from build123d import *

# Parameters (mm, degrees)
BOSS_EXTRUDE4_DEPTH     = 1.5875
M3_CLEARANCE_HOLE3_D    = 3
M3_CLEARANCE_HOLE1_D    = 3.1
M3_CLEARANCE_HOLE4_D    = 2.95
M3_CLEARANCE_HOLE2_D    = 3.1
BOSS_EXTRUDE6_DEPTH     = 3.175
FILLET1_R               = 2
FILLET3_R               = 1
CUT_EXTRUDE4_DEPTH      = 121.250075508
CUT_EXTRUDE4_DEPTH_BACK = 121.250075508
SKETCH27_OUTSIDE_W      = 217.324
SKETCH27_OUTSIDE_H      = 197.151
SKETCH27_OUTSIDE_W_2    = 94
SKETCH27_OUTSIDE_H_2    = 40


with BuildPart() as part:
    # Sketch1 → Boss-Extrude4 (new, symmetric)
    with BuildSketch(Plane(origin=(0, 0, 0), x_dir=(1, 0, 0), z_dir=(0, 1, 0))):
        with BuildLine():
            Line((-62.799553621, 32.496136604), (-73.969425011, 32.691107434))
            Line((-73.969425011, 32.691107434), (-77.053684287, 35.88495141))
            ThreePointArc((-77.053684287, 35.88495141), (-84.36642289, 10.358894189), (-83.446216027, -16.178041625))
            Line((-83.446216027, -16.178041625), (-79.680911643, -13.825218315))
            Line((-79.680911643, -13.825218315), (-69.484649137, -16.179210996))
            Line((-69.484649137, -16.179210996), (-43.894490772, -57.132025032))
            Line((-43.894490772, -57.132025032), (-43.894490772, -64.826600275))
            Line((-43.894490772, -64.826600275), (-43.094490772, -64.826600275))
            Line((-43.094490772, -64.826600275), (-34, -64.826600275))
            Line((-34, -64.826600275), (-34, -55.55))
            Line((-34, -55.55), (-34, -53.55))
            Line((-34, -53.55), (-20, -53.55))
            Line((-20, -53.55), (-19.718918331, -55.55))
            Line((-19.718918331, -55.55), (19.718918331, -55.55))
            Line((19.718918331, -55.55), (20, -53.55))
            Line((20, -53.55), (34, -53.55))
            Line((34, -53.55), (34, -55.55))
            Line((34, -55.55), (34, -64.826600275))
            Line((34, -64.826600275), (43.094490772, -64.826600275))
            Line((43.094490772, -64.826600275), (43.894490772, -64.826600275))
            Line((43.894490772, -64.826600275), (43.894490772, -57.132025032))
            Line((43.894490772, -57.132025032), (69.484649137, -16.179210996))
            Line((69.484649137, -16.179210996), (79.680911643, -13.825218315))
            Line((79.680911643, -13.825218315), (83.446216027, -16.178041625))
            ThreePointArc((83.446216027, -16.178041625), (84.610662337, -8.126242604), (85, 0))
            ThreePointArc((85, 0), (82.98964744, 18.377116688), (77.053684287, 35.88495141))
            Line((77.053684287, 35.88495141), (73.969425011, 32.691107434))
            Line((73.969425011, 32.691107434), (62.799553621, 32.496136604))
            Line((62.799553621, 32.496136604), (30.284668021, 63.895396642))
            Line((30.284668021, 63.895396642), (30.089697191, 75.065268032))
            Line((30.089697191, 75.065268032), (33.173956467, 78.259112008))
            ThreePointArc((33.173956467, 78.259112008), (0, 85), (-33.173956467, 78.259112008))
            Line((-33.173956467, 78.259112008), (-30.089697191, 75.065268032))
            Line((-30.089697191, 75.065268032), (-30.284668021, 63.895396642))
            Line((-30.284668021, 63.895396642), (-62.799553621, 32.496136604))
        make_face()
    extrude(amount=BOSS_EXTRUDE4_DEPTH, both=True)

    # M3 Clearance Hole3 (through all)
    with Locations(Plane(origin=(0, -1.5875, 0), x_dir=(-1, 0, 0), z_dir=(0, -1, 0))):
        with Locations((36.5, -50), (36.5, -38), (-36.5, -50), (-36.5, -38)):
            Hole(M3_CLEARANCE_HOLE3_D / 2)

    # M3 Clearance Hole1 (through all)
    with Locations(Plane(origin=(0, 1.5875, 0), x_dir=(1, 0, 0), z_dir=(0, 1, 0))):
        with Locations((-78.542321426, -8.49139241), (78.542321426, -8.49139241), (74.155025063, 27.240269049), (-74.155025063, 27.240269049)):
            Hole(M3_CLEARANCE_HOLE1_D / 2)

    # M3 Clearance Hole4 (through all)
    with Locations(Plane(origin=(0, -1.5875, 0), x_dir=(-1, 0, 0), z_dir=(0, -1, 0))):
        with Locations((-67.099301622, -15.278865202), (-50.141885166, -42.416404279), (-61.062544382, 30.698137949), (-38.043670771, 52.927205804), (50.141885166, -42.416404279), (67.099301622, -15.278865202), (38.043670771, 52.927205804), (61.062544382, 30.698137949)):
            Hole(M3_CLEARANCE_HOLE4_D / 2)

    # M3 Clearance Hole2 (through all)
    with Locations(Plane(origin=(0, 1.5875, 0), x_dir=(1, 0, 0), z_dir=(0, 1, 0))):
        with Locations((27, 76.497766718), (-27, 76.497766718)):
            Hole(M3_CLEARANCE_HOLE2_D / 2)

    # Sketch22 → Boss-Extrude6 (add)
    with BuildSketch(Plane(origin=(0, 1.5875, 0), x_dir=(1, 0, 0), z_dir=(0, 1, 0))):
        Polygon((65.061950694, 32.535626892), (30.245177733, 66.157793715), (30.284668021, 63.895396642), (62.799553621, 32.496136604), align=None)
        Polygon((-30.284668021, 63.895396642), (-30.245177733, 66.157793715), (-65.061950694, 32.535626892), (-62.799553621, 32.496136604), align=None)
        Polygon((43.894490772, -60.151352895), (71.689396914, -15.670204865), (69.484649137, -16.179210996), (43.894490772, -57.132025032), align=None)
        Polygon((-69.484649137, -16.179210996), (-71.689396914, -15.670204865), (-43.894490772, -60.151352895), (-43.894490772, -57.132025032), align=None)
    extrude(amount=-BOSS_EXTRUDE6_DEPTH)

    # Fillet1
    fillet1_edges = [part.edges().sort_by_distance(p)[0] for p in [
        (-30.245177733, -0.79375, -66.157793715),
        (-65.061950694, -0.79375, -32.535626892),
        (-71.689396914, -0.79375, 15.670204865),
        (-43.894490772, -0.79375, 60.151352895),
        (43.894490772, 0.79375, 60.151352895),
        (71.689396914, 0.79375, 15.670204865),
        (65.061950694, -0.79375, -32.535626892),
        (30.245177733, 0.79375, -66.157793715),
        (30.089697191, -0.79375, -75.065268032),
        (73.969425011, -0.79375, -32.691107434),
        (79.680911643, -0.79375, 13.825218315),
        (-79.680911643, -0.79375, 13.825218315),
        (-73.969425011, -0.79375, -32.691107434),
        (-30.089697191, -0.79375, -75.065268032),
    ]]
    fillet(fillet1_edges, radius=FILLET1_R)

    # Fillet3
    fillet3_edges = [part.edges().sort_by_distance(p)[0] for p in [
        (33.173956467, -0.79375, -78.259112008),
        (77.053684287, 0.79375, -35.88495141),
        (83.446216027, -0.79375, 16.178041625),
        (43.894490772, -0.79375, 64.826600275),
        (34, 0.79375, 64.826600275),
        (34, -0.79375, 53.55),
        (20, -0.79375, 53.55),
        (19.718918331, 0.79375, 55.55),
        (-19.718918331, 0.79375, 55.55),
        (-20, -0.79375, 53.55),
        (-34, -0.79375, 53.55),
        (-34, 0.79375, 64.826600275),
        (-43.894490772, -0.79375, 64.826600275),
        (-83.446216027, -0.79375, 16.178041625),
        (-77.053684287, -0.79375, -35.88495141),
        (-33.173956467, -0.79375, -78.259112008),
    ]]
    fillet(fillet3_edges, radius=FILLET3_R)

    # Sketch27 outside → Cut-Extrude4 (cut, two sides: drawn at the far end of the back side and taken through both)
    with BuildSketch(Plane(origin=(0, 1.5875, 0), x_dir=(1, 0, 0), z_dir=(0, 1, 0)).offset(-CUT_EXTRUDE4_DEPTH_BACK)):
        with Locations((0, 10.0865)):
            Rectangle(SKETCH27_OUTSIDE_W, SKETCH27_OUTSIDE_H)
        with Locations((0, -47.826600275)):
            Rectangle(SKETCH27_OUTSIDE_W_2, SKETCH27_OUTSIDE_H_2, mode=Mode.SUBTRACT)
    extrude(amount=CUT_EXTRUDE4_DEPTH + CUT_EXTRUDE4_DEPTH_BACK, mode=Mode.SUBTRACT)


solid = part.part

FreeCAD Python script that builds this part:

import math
import FreeCAD as App
import Part
import Sketcher
Q = App.Units.Quantity


def edges_at(feature, points):
    """Names of the edges that pass closest to the given points."""
    edges = feature.Shape.Edges
    near = lambda p: min(range(len(edges)), key=lambda i: edges[i].distToShape(Part.Vertex(*p))[0])
    return sorted({f"Edge{near(p) + 1}" for p in points})


def add_polygon(sketch, points):
    """Adds a closed chain of lines whose ends are joined by coincident constraints."""
    first, n = sketch.GeometryCount, len(points)
    for a, b in zip(points, points[1:] + points[:1]):
        sketch.addGeometry(Part.LineSegment(App.Vector(*a, 0), App.Vector(*b, 0)), False)
    for i in range(n):
        sketch.addConstraint(Sketcher.Constraint("Coincident", first + i, 2, first + (i + 1) % n, 1))

doc = App.newDocument("Part")
body = doc.addObject("PartDesign::Body", "Body")

# Sketch on XZ plane
sketch1 = body.newObject("Sketcher::SketchObject", "Sketch")
sketch1.AttachmentSupport = (doc.getObject("XZ_Plane"), [""])
sketch1.MapMode = "FlatFace"
sketch1.addGeometry([
    Part.LineSegment(App.Vector(-62.8, -32.5, 0), App.Vector(-74, -32.7, 0)),  # 0
    Part.LineSegment(App.Vector(-74, -32.7, 0), App.Vector(-77.1, -35.9, 0)),  # 1
    Part.ArcOfCircle(Part.Circle(App.Vector(0, 0, 0), App.Vector(0, 0, 1), 85), math.radians(169), math.radians(205)),  # 2
    Part.LineSegment(App.Vector(-83.4, 16.2, 0), App.Vector(-79.7, 13.8, 0)),  # 3
    Part.LineSegment(App.Vector(-79.7, 13.8, 0), App.Vector(-69.5, 16.2, 0)),  # 4
    Part.LineSegment(App.Vector(-69.5, 16.2, 0), App.Vector(-43.9, 57.1, 0)),  # 5
    Part.LineSegment(App.Vector(-43.9, 57.1, 0), App.Vector(-43.9, 64.8, 0)),  # 6
    Part.LineSegment(App.Vector(-43.9, 64.8, 0), App.Vector(-34, 64.8, 0)),  # 7
    Part.LineSegment(App.Vector(-34, 64.8, 0), App.Vector(-34, 53.5, 0)),  # 8
    Part.LineSegment(App.Vector(-34, 53.5, 0), App.Vector(-20, 53.5, 0)),  # 9
    Part.LineSegment(App.Vector(-20, 53.5, 0), App.Vector(-19.7, 55.5, 0)),  # 10
    Part.LineSegment(App.Vector(-19.7, 55.5, 0), App.Vector(19.7, 55.5, 0)),  # 11
    Part.LineSegment(App.Vector(19.7, 55.5, 0), App.Vector(20, 53.5, 0)),  # 12
    Part.LineSegment(App.Vector(20, 53.5, 0), App.Vector(34, 53.5, 0)),  # 13
    Part.LineSegment(App.Vector(34, 53.5, 0), App.Vector(34, 64.8, 0)),  # 14
    Part.LineSegment(App.Vector(34, 64.8, 0), App.Vector(43.9, 64.8, 0)),  # 15
    Part.LineSegment(App.Vector(43.9, 64.8, 0), App.Vector(43.9, 57.1, 0)),  # 16
    Part.LineSegment(App.Vector(43.9, 57.1, 0), App.Vector(69.5, 16.2, 0)),  # 17
    Part.LineSegment(App.Vector(69.5, 16.2, 0), App.Vector(79.7, 13.8, 0)),  # 18
    Part.LineSegment(App.Vector(79.7, 13.8, 0), App.Vector(83.4, 16.2, 0)),  # 19
    Part.ArcOfCircle(Part.Circle(App.Vector(0, 0, 0), App.Vector(0, 0, 1), 85), math.radians(0), math.radians(10.97)),  # 20
    Part.ArcOfCircle(Part.Circle(App.Vector(0, 0, 0), App.Vector(0, 0, 1), 85), math.radians(-25), math.radians(0)),  # 21
    Part.LineSegment(App.Vector(77.1, -35.9, 0), App.Vector(74, -32.7, 0)),  # 22
    Part.LineSegment(App.Vector(74, -32.7, 0), App.Vector(62.8, -32.5, 0)),  # 23
    Part.LineSegment(App.Vector(62.8, -32.5, 0), App.Vector(30.3, -63.9, 0)),  # 24
    Part.LineSegment(App.Vector(30.3, -63.9, 0), App.Vector(30.1, -75.1, 0)),  # 25
    Part.LineSegment(App.Vector(30.1, -75.1, 0), App.Vector(33.2, -78.3, 0)),  # 26
    Part.ArcOfCircle(Part.Circle(App.Vector(0, 0, 0), App.Vector(0, 0, 1), 85), math.radians(-113), math.radians(-67)),  # 27
    Part.LineSegment(App.Vector(-33.2, -78.3, 0), App.Vector(-30.1, -75.1, 0)),  # 28
    Part.LineSegment(App.Vector(-30.1, -75.1, 0), App.Vector(-30.3, -63.9, 0)),  # 29
    Part.LineSegment(App.Vector(-30.3, -63.9, 0), App.Vector(-62.8, -32.5, 0)),  # 30
], False)
sketch1.addConstraint([
    Sketcher.Constraint("Coincident", 0, 2, 1, 1),
    Sketcher.Constraint("Coincident", 1, 2, 2, 2),
    Sketcher.Constraint("Coincident", 2, 1, 3, 1),
    Sketcher.Constraint("Coincident", 3, 2, 4, 1),
    Sketcher.Constraint("Coincident", 4, 2, 5, 1),
    Sketcher.Constraint("Coincident", 5, 2, 6, 1),
    Sketcher.Constraint("Coincident", 6, 2, 7, 1),
    Sketcher.Constraint("Coincident", 7, 2, 8, 1),
    Sketcher.Constraint("Coincident", 8, 2, 9, 1),
    Sketcher.Constraint("Coincident", 9, 2, 10, 1),
    Sketcher.Constraint("Coincident", 10, 2, 11, 1),
    Sketcher.Constraint("Coincident", 11, 2, 12, 1),
    Sketcher.Constraint("Coincident", 12, 2, 13, 1),
    Sketcher.Constraint("Coincident", 13, 2, 14, 1),
    Sketcher.Constraint("Coincident", 14, 2, 15, 1),
    Sketcher.Constraint("Coincident", 15, 2, 16, 1),
    Sketcher.Constraint("Coincident", 16, 2, 17, 1),
    Sketcher.Constraint("Coincident", 17, 2, 18, 1),
    Sketcher.Constraint("Coincident", 18, 2, 19, 1),
    Sketcher.Constraint("Coincident", 19, 2, 20, 2),
    Sketcher.Constraint("Tangent", 20, 1, 21, 2),
    Sketcher.Constraint("Coincident", 21, 1, 22, 1),
    Sketcher.Constraint("Coincident", 22, 2, 23, 1),
    Sketcher.Constraint("Coincident", 23, 2, 24, 1),
    Sketcher.Constraint("Coincident", 24, 2, 25, 1),
    Sketcher.Constraint("Coincident", 25, 2, 26, 1),
    Sketcher.Constraint("Coincident", 26, 2, 27, 2),
    Sketcher.Constraint("Coincident", 27, 1, 28, 1),
    Sketcher.Constraint("Coincident", 28, 2, 29, 1),
    Sketcher.Constraint("Coincident", 29, 2, 30, 1),
    Sketcher.Constraint("Coincident", 30, 2, 0, 1),
    Sketcher.Constraint("Vertical", 6),
    Sketcher.Constraint("Horizontal", 7),
    Sketcher.Constraint("Vertical", 8),
    Sketcher.Constraint("Horizontal", 9),
    Sketcher.Constraint("Horizontal", 11),
    Sketcher.Constraint("Horizontal", 13),
    Sketcher.Constraint("Vertical", 14),
    Sketcher.Constraint("Horizontal", 15),
    Sketcher.Constraint("Vertical", 16),
    Sketcher.Constraint("Coincident", 2, 3, -1, 1),
    Sketcher.Constraint("Coincident", 20, 3, -1, 1),
    Sketcher.Constraint("Coincident", 27, 3, -1, 1),
    Sketcher.Constraint("Equal", 2, 20),
    Sketcher.Constraint("Equal", 20, 21),
    Sketcher.Constraint("Equal", 21, 27),
    Sketcher.Constraint("Symmetric", 9, 2, 12, 2, -2),
    Sketcher.Constraint("Symmetric", 7, 2, 14, 2, -2),
    Sketcher.Constraint("Symmetric", 5, 2, 16, 2, -2),
    Sketcher.Constraint("Symmetric", 4, 2, 17, 2, -2),
    Sketcher.Constraint("Symmetric", 3, 2, 18, 2, -2),
    Sketcher.Constraint("Symmetric", 0, 2, 22, 2, -2),
    Sketcher.Constraint("Symmetric", 25, 2, 28, 2, -2),
    Sketcher.Constraint("Symmetric", 24, 2, 29, 2, -2),
    Sketcher.Constraint("Symmetric", 23, 2, 30, 2, -2),
    Sketcher.Constraint("PointOnObject", 20, 1, -1),
    Sketcher.Constraint("Perpendicular", 3, 5),
    Sketcher.Constraint("Perpendicular", 17, 19),
    Sketcher.Constraint("Perpendicular", 22, 24),
    Sketcher.Constraint("Perpendicular", 23, 25),
    Sketcher.Constraint("Perpendicular", 24, 26),
    Sketcher.Constraint("Parallel", 1, 28),
    Sketcher.Constraint("Perpendicular", 28, 30),
    Sketcher.Constraint("Equal", 1, 3),
    Sketcher.Constraint("Equal", 10, 12),
    Sketcher.Constraint("Equal", 23, 25),
    Sketcher.Constraint("Equal", 22, 26),
    Sketcher.Constraint("Radius", 2, 85.0),
    Sketcher.Constraint("DistanceX", 9, 1, 9, 2, 14.0),
    Sketcher.Constraint("Angle", 0, Q("-179 deg")),
    Sketcher.Constraint("Angle", 1, Q("-134 deg")),
    Sketcher.Constraint("Angle", 3, Q("-32 deg")),
    Sketcher.Constraint("Angle", 4, Q("13 deg")),
    Sketcher.Constraint("Angle", 10, Q("82 deg")),
    Sketcher.Constraint("DistanceX", 7, 2, -1, 1, 34.0),
    Sketcher.Constraint("DistanceY", 9, 2, 10, 2, 2.0),
    Sketcher.Constraint("DistanceY", -1, 1, 8, 2, 53.55),
    Sketcher.Constraint("DistanceY", 8, 2, 8, 1, 11.2766),
    Sketcher.Constraint("DistanceX", 7, 1, 7, 2, 9.894491),
    Sketcher.Constraint("Distance", 24, 45.20101),
    Sketcher.Constraint("DistanceY", 6, 1, 6, 2, 7.694575),
    Sketcher.Constraint("DistanceY", 1, 2, -1, 1, 35.884951),
    Sketcher.Constraint("DistanceY", -1, 1, 2, 1, 16.178042),
    Sketcher.Constraint("DistanceX", 3, 2, -1, 1, 79.680912),
])
pad1 = body.newObject("PartDesign::Pad", "Pad")
pad1.Profile = sketch1
pad1.Length = 3.175
pad1.Midplane = True

# Sketch on XZ plane
sketch2 = body.newObject("Sketcher::SketchObject", "Sketch001")
sketch2.AttachmentSupport = (doc.getObject("XZ_Plane"), [""])
sketch2.MapMode = "FlatFace"
sketch2.AttachmentOffset = App.Placement(App.Vector(0, 0, 1.5875), App.Rotation())
sketch2.addGeometry([
    Part.Circle(App.Vector(-36.5, 50, 0), App.Vector(0, 0, 1), 1.5),
    Part.Circle(App.Vector(-36.5, 38, 0), App.Vector(0, 0, 1), 1.5),
    Part.Circle(App.Vector(36.5, 50, 0), App.Vector(0, 0, 1), 1.5),
    Part.Circle(App.Vector(36.5, 38, 0), App.Vector(0, 0, 1), 1.5),
], False)
sketch2.addConstraint([
    Sketcher.Constraint("Equal", 0, 1),
    Sketcher.Constraint("Equal", 1, 2),
    Sketcher.Constraint("Equal", 2, 3),
    Sketcher.Constraint("Symmetric", 0, 3, 2, 3, -2),
    Sketcher.Constraint("Symmetric", 1, 3, 3, 3, -2),
    Sketcher.Constraint("Vertical", 0, 3, 1, 3),
    Sketcher.Constraint("Diameter", 0, 3.0),
    Sketcher.Constraint("DistanceY", -1, 1, 0, 3, 50.0),
    Sketcher.Constraint("DistanceY", -1, 1, 1, 3, 38.0),
    Sketcher.Constraint("DistanceX", 0, 3, 2, 3, 73.0),
])
doc.recompute()
hole = body.newObject("PartDesign::Hole", "Hole")
hole.Profile = sketch2
hole.ThreadType = "None"
hole.Diameter = 3
hole.DepthType = "ThroughAll"

# Sketch on XZ plane
sketch3 = body.newObject("Sketcher::SketchObject", "Sketch002")
sketch3.AttachmentSupport = (doc.getObject("XZ_Plane"), [""])
sketch3.MapMode = "FlatFace"
sketch3.AttachmentOffset = App.Placement(App.Vector(0, 0, -1.5875), App.Rotation())
sketch3.addGeometry([
    Part.Circle(App.Vector(-78.5, 8.5, 0), App.Vector(0, 0, 1), 1.6),
    Part.Circle(App.Vector(78.5, 8.5, 0), App.Vector(0, 0, 1), 1.6),
    Part.Circle(App.Vector(74.2, -27.2, 0), App.Vector(0, 0, 1), 1.6),
    Part.Circle(App.Vector(-74.2, -27.2, 0), App.Vector(0, 0, 1), 1.6),
], False)
sketch3.addConstraint([
    Sketcher.Constraint("Equal", 0, 1),
    Sketcher.Constraint("Equal", 1, 2),
    Sketcher.Constraint("Equal", 2, 3),
    Sketcher.Constraint("Symmetric", 0, 3, 1, 3, -2),
    Sketcher.Constraint("Symmetric", 2, 3, 3, 3, -2),
    Sketcher.Constraint("Diameter", 0, 3.1),
    Sketcher.Constraint("DistanceX", 0, 3, -1, 1, 78.542321),
    Sketcher.Constraint("DistanceY", 2, 3, -1, 1, 27.240269),
    Sketcher.Constraint("DistanceY", 2, 3, 1, 3, 35.731661),
    Sketcher.Constraint("DistanceX", 3, 3, 2, 3, 148.31005),
])
doc.recompute()
hole2 = body.newObject("PartDesign::Hole", "Hole001")
hole2.Profile = sketch3
hole2.ThreadType = "None"
hole2.Diameter = 3.1
hole2.DepthType = "ThroughAll"
hole2.Reversed = True

# Sketch on XZ plane
sketch4 = body.newObject("Sketcher::SketchObject", "Sketch003")
sketch4.AttachmentSupport = (doc.getObject("XZ_Plane"), [""])
sketch4.MapMode = "FlatFace"
sketch4.AttachmentOffset = App.Placement(App.Vector(0, 0, 1.5875), App.Rotation())
sketch4.addGeometry([
    Part.Circle(App.Vector(67.1, 15.3, 0), App.Vector(0, 0, 1), 1.5),  # 0
    Part.Circle(App.Vector(50.1, 42.4, 0), App.Vector(0, 0, 1), 1.5),  # 1
    Part.Circle(App.Vector(61.1, -30.7, 0), App.Vector(0, 0, 1), 1.5),  # 2
    Part.Circle(App.Vector(38, -52.9, 0), App.Vector(0, 0, 1), 1.5),  # 3
    Part.Circle(App.Vector(-50.1, 42.4, 0), App.Vector(0, 0, 1), 1.5),  # 4
    Part.Circle(App.Vector(-67.1, 15.3, 0), App.Vector(0, 0, 1), 1.5),  # 5
    Part.Circle(App.Vector(-38, -52.9, 0), App.Vector(0, 0, 1), 1.5),  # 6
    Part.Circle(App.Vector(-61.1, -30.7, 0), App.Vector(0, 0, 1), 1.5),  # 7
], False)
sketch4.addConstraint([
    Sketcher.Constraint("Equal", 0, 1),
    Sketcher.Constraint("Equal", 1, 2),
    Sketcher.Constraint("Equal", 2, 3),
    Sketcher.Constraint("Equal", 3, 4),
    Sketcher.Constraint("Equal", 4, 5),
    Sketcher.Constraint("Equal", 5, 6),
    Sketcher.Constraint("Equal", 6, 7),
    Sketcher.Constraint("Symmetric", 1, 3, 4, 3, -2),
    Sketcher.Constraint("Symmetric", 0, 3, 5, 3, -2),
    Sketcher.Constraint("Symmetric", 3, 3, 6, 3, -2),
    Sketcher.Constraint("Symmetric", 2, 3, 7, 3, -2),
    Sketcher.Constraint("Diameter", 0, 2.95),
    Sketcher.Constraint("DistanceX", -1, 1, 0, 3, 67.099302),
    Sketcher.Constraint("DistanceX", -1, 1, 3, 3, 38.043671),
    Sketcher.Constraint("DistanceY", 0, 3, 1, 3, 27.137539),
    Sketcher.Constraint("DistanceX", 1, 3, 2, 3, 10.920659),
    Sketcher.Constraint("DistanceY", 3, 3, 0, 3, 68.206071),
    Sketcher.Constraint("DistanceX", 4, 3, 1, 3, 100.28377),
    Sketcher.Constraint("DistanceY", -1, 1, 0, 3, 15.278865),
    Sketcher.Constraint("DistanceY", 2, 3, -1, 1, 30.698138),
])
doc.recompute()
hole3 = body.newObject("PartDesign::Hole", "Hole002")
hole3.Profile = sketch4
hole3.ThreadType = "None"
hole3.Diameter = 2.95
hole3.DepthType = "ThroughAll"

# Sketch on XZ plane
sketch5 = body.newObject("Sketcher::SketchObject", "Sketch004")
sketch5.AttachmentSupport = (doc.getObject("XZ_Plane"), [""])
sketch5.MapMode = "FlatFace"
sketch5.AttachmentOffset = App.Placement(App.Vector(0, 0, -1.5875), App.Rotation())
sketch5.addGeometry([
    Part.Circle(App.Vector(27, -76.5, 0), App.Vector(0, 0, 1), 1.6),
    Part.Circle(App.Vector(-27, -76.5, 0), App.Vector(0, 0, 1), 1.6),
], False)
sketch5.addConstraint([
    Sketcher.Constraint("Equal", 0, 1),
    Sketcher.Constraint("Symmetric", 0, 3, 1, 3, -2),
    Sketcher.Constraint("Diameter", 0, 3.1),
    Sketcher.Constraint("DistanceX", -1, 1, 0, 3, 27.0),
    Sketcher.Constraint("DistanceY", 0, 3, -1, 1, 76.497767),
])
doc.recompute()
hole4 = body.newObject("PartDesign::Hole", "Hole003")
hole4.Profile = sketch5
hole4.ThreadType = "None"
hole4.Diameter = 3.1
hole4.DepthType = "ThroughAll"
hole4.Reversed = True

# Sketch on XZ plane
sketch6 = body.newObject("Sketcher::SketchObject", "Sketch005")
sketch6.AttachmentSupport = (doc.getObject("XZ_Plane"), [""])
sketch6.MapMode = "FlatFace"
sketch6.AttachmentOffset = App.Placement(App.Vector(0, 0, -1.5875), App.Rotation())
add_polygon(sketch6, [(65.1, -32.5), (30.2, -66.2), (30.3, -63.9), (62.8, -32.5)])  # lines 0-3
add_polygon(sketch6, [(-30.3, -63.9), (-30.2, -66.2), (-65.1, -32.5), (-62.8, -32.5)])  # lines 4-7
add_polygon(sketch6, [(43.9, 60.2), (71.7, 15.7), (69.5, 16.2), (43.9, 57.1)])  # lines 8-11
add_polygon(sketch6, [(-69.5, 16.2), (-71.7, 15.7), (-43.9, 60.2), (-43.9, 57.1)])  # lines 12-15
sketch6.addConstraint([
    Sketcher.Constraint("Vertical", 11),
    Sketcher.Constraint("Vertical", 14),
    Sketcher.Constraint("Symmetric", 0, 2, 4, 2, -2),
    Sketcher.Constraint("Symmetric", 3, 2, 5, 2, -2),
    Sketcher.Constraint("Symmetric", 2, 2, 6, 2, -2),
    Sketcher.Constraint("Symmetric", 1, 2, 7, 2, -2),
    Sketcher.Constraint("Symmetric", 8, 2, 12, 2, -2),
    Sketcher.Constraint("Symmetric", 11, 2, 13, 2, -2),
    Sketcher.Constraint("Symmetric", 9, 2, 15, 2, -2),
    Sketcher.Constraint("Parallel", 0, 2),
    Sketcher.Constraint("Perpendicular", 1, 3),
    Sketcher.Constraint("Parallel", 8, 10),
    Sketcher.Constraint("Parallel", 13, 15),
    Sketcher.Constraint("Equal", 1, 3),
    Sketcher.Constraint("Equal", 6, 9),
    Sketcher.Constraint("Angle", 0, Q("-136 deg")),
    Sketcher.Constraint("Angle", 8, Q("-58 deg")),
    Sketcher.Constraint("Angle", 9, Q("167 deg")),
    Sketcher.Constraint("DistanceY", 0, 2, 8, 2, 81.827999),
    Sketcher.Constraint("DistanceX", 5, 2, 3, 2, 130.123901),
    Sketcher.Constraint("DistanceY", 1, 2, 8, 2, 79.565602),
    Sketcher.Constraint("DistanceX", 3, 2, 9, 2, 4.422698),
    Sketcher.Constraint("Distance", 0, 48.40101),
    Sketcher.Constraint("Distance", 8, 52.451209),
    Sketcher.Constraint("DistanceY", -1, 1, 9, 2, 16.179211),
])
pad2 = body.newObject("PartDesign::Pad", "Pad001")
pad2.Profile = sketch6
pad2.Length = 3.175
doc.recompute()

fillet = body.newObject("PartDesign::Fillet", "Fillet")
fillet.Base = (pad2, edges_at(pad2, [
    (-30.245, 0, -66.158),
    (-65.062, 0, -32.536),
    (-71.689, 0, 15.67),
    (-43.894, 0, 60.151),
    (43.894, 0, 60.151),
    (71.689, 0, 15.67),
    (65.062, 0, -32.536),
    (30.245, 0, -66.158),
    (30.09, 0, -75.065),
    (73.969, 0, -32.691),
    (79.681, 0, 13.825),
    (-79.681, 0, 13.825),
    (-73.969, 0, -32.691),
    (-30.09, 0, -75.065),
]))
fillet.Radius = 2
doc.recompute()

fillet2 = body.newObject("PartDesign::Fillet", "Fillet001")
fillet2.Base = (fillet, edges_at(fillet, [
    (33.174, 0, -78.259),
    (77.054, 0, -35.885),
    (83.446, 0, 16.178),
    (43.894, 0, 64.827),
    (34, 0, 64.827),
    (34, 0, 53.55),
    (20, 0, 53.55),
    (19.719, 0, 55.55),
    (-19.719, 0, 55.55),
    (-20, 0, 53.55),
    (-34, 0, 53.55),
    (-34, 0, 64.827),
    (-43.894, 0, 64.827),
    (-83.446, 0, 16.178),
    (-77.054, 0, -35.885),
    (-33.174, 0, -78.259),
]))
fillet2.Radius = 1

# Sketch on XZ plane
sketch7 = body.newObject("Sketcher::SketchObject", "Sketch006")
sketch7.AttachmentSupport = (doc.getObject("XZ_Plane"), [""])
sketch7.MapMode = "FlatFace"
sketch7.AttachmentOffset = App.Placement(App.Vector(0, 0, -1.5875), App.Rotation())
add_polygon(sketch7, [(-109, -109), (-109, 88), (109, 88), (109, -109)])  # lines 0-3
add_polygon(sketch7, [(47, 68), (-47, 68), (-47, 28), (47, 28)])  # lines 4-7
sketch7.addConstraint([
    Sketcher.Constraint("Vertical", 0),
    Sketcher.Constraint("Horizontal", 1),
    Sketcher.Constraint("Vertical", 2),
    Sketcher.Constraint("Horizontal", 3),
    Sketcher.Constraint("Horizontal", 4),
    Sketcher.Constraint("Vertical", 5),
    Sketcher.Constraint("Horizontal", 6),
    Sketcher.Constraint("Vertical", 7),
    Sketcher.Constraint("DistanceX", 4, 2, 4, 1, 94.0),
    Sketcher.Constraint("DistanceY", 5, 2, 5, 1, 40.0),
    Sketcher.Constraint("DistanceX", 4, 2, -1, 1, 47.0),
    Sketcher.Constraint("DistanceX", 1, 1, 1, 2, 217.324),
    Sketcher.Constraint("DistanceY", 0, 1, 0, 2, 197.151),
    Sketcher.Constraint("DistanceX", 0, 2, -1, 1, 108.662),
    Sketcher.Constraint("DistanceY", -1, 1, 0, 2, 88.489),
    Sketcher.Constraint("DistanceY", -1, 1, 4, 2, 67.8266),
])
pocket1 = body.newObject("PartDesign::Pocket", "Pocket")
pocket1.Profile = sketch7
pocket1.Type = "ThroughAll"
pocket1.Midplane = True

doc.recompute()
